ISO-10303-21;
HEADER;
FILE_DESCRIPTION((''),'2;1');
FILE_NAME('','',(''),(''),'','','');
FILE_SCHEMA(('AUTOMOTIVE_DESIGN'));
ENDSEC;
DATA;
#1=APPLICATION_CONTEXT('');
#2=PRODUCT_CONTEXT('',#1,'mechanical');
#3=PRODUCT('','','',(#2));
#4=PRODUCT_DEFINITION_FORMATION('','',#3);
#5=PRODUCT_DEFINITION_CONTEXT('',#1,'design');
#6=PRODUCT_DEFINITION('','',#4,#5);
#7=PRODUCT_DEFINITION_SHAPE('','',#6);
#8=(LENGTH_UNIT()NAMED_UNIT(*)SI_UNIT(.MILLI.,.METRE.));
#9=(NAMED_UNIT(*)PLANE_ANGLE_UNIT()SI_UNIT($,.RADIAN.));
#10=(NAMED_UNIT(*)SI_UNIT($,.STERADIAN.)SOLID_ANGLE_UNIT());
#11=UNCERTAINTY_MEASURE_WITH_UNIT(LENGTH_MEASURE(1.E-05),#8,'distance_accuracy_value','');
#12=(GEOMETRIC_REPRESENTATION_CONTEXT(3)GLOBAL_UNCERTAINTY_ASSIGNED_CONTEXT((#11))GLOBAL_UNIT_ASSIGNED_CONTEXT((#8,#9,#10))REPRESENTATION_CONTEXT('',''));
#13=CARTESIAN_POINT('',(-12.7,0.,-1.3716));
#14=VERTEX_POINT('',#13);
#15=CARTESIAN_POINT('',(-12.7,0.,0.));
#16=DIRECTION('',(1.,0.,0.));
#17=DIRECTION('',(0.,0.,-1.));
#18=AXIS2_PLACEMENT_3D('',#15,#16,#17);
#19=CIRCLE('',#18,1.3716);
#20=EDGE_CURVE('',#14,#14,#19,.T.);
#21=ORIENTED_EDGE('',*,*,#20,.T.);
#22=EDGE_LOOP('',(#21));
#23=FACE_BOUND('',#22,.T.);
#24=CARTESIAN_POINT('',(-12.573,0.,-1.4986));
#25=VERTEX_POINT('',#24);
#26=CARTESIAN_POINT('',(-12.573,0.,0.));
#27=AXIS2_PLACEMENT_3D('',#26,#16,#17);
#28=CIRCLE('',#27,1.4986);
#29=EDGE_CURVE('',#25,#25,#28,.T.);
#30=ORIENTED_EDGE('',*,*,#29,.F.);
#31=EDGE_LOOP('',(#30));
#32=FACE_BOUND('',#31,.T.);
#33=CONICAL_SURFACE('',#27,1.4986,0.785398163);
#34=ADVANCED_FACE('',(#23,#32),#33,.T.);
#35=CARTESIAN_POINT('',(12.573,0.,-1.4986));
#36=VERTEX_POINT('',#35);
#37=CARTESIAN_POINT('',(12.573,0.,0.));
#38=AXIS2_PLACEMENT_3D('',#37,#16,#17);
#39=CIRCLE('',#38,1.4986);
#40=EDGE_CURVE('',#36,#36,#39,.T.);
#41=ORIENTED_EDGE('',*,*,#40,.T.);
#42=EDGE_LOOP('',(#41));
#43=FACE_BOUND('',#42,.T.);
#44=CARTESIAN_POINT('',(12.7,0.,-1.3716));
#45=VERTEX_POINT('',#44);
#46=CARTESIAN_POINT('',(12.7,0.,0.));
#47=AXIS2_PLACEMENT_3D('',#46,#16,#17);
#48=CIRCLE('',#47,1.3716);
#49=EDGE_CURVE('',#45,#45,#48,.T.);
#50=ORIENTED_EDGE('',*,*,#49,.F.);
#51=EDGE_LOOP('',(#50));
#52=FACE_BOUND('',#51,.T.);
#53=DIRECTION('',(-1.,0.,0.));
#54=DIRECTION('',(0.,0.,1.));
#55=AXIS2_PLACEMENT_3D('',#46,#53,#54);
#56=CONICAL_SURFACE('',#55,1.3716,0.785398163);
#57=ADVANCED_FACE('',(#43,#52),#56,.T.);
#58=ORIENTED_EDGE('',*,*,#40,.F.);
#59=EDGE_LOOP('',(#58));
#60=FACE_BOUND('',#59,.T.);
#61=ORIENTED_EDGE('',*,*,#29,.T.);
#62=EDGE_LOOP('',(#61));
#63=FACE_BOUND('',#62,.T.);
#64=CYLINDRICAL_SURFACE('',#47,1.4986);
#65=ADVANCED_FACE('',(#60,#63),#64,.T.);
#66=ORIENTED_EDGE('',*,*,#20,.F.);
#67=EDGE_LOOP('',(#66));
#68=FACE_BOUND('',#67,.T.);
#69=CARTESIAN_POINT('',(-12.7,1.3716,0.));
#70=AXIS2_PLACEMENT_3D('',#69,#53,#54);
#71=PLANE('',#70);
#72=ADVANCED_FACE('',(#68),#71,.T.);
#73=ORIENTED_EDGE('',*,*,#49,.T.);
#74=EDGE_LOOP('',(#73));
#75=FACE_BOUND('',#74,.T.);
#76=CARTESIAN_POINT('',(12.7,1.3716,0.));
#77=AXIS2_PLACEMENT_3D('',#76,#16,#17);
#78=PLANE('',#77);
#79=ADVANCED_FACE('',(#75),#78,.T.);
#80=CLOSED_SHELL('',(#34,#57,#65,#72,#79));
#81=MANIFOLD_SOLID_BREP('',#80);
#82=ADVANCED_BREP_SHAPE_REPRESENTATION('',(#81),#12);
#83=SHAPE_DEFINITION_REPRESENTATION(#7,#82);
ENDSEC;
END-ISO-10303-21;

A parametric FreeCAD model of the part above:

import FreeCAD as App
import Part
import Sketcher

V = App.Vector
Q = App.Units.Quantity


def add_polygon(sketch, points):
    """Adds a closed chain of lines whose ends are joined by coincident constraints."""
    first, n = sketch.GeometryCount, len(points)
    for a, b in zip(points, points[1:] + points[:1]):
        sketch.addGeometry(Part.LineSegment(App.Vector(*a, 0), App.Vector(*b, 0)), False)
    for i in range(n):
        sketch.addConstraint(Sketcher.Constraint("Coincident", first + i, 2, first + (i + 1) % n, 1))

doc = App.newDocument("Part")
params = doc.addObject("Spreadsheet::Sheet", "Params")
for row, (alias, value) in enumerate([
    ("sketch1_width", "1 in"),
    ("sketch1_width2", "0.99 in"),
    ("sketch1_height", "0.054 in"),
    ("revolution_angle", "360 deg"),
], start=1):
    params.set(f"A{row}", alias)
    params.set(f"B{row}", "=" + value)
    params.setAlias(f"B{row}", alias)

body = doc.addObject("PartDesign::Body", "Body")

# Sketch on XY plane
sketch1 = body.newObject("Sketcher::SketchObject", "Sketch")
sketch1.AttachmentSupport = (doc.getObject("XY_Plane"), [""])
sketch1.MapMode = "FlatFace"
add_polygon(sketch1, [(12.573, 1.4986), (-12.573, 1.4986), (-12.7, 1.3716), (-12.7, 0), (12.7, 0), (12.7, 1.3716)])  # lines 0-5
sketch1.addConstraint([
    Sketcher.Constraint("Horizontal", 0),
    Sketcher.Constraint("Vertical", 2),
    Sketcher.Constraint("Horizontal", 3),
    Sketcher.Constraint("Vertical", 4),
    Sketcher.Constraint("Symmetric", 2, 2, 3, 2, -1, 1),
    Sketcher.Constraint("Perpendicular", 1, 5),
    Sketcher.Constraint("Horizontal", 1, 2, 4, 2),
    Sketcher.Constraint("Equal", 1, 5),
    Sketcher.Constraint("DistanceX", 3, 1, 3, 2, Q("1 in")),
    Sketcher.Constraint("DistanceX", 0, 2, 0, 1, Q("0.99 in")),
    Sketcher.Constraint("DistanceY", 2, 2, 2, 1, Q("0.054 in")),
])
sketch1.setExpression("Constraints[14]", "Params.sketch1_width")
sketch1.setExpression("Constraints[15]", "Params.sketch1_width2")
sketch1.setExpression("Constraints[16]", "Params.sketch1_height")
revolution = body.newObject("PartDesign::Revolution", "Revolution")
revolution.Profile = sketch1
revolution.ReferenceAxis = (sketch1, ["H_Axis"])
revolution.setExpression("Angle", "Params.revolution_angle")

doc.recompute()
